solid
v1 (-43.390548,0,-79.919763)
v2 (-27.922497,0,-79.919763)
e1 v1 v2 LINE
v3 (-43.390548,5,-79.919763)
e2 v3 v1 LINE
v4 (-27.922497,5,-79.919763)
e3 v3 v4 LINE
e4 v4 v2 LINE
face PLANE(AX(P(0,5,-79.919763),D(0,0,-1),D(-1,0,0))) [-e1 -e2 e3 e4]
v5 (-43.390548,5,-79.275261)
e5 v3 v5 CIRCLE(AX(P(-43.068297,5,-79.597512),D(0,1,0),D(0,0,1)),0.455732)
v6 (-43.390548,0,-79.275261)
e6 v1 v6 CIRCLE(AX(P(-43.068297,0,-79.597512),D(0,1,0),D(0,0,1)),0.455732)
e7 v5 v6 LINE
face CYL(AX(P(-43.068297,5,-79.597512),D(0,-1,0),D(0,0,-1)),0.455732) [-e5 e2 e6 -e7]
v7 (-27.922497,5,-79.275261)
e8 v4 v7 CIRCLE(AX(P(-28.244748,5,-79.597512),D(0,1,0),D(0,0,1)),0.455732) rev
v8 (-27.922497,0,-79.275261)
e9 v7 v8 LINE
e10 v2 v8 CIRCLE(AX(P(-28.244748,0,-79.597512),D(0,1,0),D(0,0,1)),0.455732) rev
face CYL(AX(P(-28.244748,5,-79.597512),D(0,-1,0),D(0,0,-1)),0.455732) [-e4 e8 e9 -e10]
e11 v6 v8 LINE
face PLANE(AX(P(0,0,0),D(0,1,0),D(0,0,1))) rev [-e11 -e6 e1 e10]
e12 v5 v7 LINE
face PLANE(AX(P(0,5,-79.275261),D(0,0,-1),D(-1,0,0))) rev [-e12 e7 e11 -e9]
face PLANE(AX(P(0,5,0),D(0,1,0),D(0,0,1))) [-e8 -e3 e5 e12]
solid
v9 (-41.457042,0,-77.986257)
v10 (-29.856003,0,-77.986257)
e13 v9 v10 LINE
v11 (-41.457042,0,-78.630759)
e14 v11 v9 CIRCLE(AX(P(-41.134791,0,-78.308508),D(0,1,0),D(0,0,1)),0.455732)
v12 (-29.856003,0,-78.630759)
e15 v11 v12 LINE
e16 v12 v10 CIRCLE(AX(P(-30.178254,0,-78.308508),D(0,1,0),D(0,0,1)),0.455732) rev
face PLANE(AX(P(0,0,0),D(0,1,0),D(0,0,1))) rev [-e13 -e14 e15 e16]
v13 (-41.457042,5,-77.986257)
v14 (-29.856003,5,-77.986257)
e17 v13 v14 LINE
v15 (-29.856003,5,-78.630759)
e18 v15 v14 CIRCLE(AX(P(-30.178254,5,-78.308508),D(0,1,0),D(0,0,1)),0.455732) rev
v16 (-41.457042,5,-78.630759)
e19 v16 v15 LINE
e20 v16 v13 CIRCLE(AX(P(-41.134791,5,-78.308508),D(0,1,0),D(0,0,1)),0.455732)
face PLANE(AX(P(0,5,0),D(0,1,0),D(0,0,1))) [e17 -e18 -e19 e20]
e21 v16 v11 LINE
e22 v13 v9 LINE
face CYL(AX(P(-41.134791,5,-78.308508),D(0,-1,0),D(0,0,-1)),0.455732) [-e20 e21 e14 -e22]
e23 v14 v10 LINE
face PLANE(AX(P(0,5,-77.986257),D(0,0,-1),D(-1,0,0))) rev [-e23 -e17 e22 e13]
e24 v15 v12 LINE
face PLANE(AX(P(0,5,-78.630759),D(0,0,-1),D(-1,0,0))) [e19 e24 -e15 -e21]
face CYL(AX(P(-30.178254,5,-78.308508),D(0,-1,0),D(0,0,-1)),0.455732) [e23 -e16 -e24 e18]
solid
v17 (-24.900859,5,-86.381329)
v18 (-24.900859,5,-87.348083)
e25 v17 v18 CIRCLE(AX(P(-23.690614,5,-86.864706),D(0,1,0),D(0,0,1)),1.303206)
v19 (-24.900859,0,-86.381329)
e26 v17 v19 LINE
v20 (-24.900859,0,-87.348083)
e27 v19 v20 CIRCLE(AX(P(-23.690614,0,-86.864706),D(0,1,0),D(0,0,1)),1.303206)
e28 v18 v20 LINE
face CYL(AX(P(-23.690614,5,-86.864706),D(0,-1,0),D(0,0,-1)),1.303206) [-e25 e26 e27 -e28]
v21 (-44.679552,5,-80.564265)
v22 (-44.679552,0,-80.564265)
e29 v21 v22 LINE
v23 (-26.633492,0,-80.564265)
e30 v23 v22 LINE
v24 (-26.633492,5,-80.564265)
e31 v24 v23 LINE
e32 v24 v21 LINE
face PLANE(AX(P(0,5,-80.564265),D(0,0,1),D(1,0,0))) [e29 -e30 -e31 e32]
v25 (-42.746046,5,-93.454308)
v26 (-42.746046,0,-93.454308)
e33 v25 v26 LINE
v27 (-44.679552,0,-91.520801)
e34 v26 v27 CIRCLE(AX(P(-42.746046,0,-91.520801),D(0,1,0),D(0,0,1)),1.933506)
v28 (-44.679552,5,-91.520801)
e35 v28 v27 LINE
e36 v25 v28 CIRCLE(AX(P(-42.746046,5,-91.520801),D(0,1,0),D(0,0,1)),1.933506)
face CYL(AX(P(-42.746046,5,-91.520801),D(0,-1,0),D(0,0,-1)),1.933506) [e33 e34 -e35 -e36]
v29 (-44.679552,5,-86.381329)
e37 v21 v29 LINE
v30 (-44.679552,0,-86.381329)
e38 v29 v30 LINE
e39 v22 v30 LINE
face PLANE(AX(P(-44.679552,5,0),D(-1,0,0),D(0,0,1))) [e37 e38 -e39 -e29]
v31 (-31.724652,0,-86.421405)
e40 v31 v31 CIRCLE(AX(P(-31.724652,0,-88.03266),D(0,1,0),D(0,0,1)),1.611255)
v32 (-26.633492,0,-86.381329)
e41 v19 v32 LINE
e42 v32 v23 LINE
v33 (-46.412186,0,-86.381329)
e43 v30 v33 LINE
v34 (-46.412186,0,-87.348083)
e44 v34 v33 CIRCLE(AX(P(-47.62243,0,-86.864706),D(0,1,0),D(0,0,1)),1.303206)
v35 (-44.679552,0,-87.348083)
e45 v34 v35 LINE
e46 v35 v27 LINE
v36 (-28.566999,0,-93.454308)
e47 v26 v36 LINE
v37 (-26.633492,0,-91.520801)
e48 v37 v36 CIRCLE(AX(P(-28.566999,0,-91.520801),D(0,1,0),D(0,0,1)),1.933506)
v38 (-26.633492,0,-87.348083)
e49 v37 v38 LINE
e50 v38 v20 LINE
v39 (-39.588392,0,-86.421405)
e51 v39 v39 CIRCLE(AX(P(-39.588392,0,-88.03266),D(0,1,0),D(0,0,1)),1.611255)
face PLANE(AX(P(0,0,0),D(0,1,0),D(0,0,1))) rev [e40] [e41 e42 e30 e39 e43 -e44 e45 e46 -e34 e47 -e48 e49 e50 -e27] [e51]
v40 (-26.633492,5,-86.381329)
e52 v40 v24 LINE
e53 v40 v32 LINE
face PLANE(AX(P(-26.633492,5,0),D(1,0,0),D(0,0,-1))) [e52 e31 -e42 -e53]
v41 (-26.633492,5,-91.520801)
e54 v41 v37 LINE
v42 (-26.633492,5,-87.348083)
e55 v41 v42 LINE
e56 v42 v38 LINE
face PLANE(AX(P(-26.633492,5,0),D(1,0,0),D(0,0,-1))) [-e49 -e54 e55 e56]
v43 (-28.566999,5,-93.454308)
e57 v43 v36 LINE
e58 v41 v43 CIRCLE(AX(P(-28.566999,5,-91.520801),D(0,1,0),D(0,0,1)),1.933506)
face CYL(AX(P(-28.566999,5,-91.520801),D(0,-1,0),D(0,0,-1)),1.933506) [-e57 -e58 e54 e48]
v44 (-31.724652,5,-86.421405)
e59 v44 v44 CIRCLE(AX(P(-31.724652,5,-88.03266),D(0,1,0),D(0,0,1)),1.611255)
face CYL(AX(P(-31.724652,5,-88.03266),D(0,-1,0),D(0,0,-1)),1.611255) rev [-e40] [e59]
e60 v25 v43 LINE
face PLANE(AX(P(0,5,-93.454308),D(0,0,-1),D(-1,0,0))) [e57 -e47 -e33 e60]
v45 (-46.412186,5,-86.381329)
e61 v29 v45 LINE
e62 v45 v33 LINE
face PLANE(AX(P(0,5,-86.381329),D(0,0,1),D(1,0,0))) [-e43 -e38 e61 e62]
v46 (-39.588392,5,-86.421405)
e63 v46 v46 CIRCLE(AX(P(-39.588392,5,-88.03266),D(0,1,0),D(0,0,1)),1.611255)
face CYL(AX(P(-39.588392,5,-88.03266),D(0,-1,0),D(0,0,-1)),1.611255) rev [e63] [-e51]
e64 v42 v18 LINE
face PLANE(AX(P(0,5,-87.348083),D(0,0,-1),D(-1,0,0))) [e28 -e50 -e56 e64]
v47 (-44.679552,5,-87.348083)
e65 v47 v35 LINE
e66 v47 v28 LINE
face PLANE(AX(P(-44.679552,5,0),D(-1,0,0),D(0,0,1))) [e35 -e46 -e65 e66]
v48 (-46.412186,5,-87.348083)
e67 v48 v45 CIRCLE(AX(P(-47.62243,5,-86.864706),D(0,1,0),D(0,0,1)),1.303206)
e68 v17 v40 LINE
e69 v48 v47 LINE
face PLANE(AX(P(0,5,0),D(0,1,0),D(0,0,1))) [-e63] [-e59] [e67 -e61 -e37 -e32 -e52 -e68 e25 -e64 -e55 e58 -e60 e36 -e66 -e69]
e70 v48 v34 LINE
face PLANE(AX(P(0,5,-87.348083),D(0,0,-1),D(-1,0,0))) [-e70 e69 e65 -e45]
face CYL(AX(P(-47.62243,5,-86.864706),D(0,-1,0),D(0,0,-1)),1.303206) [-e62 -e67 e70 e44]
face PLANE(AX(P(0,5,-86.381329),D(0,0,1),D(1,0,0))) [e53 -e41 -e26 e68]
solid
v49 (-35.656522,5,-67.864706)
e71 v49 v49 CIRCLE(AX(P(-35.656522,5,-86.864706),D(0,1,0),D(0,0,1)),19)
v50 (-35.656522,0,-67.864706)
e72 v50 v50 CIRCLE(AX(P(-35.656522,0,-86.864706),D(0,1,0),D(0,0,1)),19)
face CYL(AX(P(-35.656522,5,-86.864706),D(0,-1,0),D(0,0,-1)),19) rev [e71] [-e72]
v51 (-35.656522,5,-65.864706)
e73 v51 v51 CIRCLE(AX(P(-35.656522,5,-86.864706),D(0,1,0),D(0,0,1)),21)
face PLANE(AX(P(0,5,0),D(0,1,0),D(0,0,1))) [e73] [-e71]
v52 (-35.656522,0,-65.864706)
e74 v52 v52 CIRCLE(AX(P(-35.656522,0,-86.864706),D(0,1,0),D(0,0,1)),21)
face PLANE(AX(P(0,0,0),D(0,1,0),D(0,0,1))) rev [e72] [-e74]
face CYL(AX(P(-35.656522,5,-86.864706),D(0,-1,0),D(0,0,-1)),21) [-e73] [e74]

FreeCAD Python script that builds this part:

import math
import FreeCAD as App
import Part
import Sketcher

doc = App.newDocument("Part")
body = doc.addObject("PartDesign::Body", "Body")

# Sketch on XZ plane
sketch1 = body.newObject("Sketcher::SketchObject", "Sketch")
sketch1.AttachmentSupport = (doc.getObject("XZ_Plane"), [""])
sketch1.MapMode = "FlatFace"
sketch1.addGeometry(Part.Circle(App.Vector(-35.656522, -86.864706, 0), App.Vector(0, 0, 1), 21), False)
sketch1.addGeometry(Part.Circle(App.Vector(-35.656522, -86.864706, 0), App.Vector(0, 0, 1), 19), False)
sketch1.addConstraint(Sketcher.Constraint("Coincident", 1, 3, 0, 3))
sketch1.addConstraint(Sketcher.Constraint("Diameter", 0, 42.0))
sketch1.addConstraint(Sketcher.Constraint("Diameter", 1, 38.0))
sketch1.addConstraint(Sketcher.Constraint("DistanceX", 0, 3, -1, 1, 35.656522))
sketch1.addConstraint(Sketcher.Constraint("DistanceY", 0, 3, -1, 1, 86.864706))
pad1 = body.newObject("PartDesign::Pad", "Pad")
pad1.Profile = sketch1
pad1.Length = 5
pad1.Reversed = True
body2 = doc.addObject("PartDesign::Body", "Body001")

# Sketch on XZ plane
sketch2 = body2.newObject("Sketcher::SketchObject", "Sketch001")
sketch2.AttachmentSupport = (doc.getObject("XZ_Plane001"), [""])
sketch2.MapMode = "FlatFace"
sketch2.addGeometry(Part.LineSegment(App.Vector(-26.633492, -87.348083, 0), App.Vector(-26.633492, -91.520801, 0)), False)
sketch2.addGeometry(Part.ArcOfCircle(Part.Circle(App.Vector(-28.566999, -91.520801, 0), App.Vector(0, 0, 1), 1.933506), math.radians(-90), math.radians(0)), False)
sketch2.addGeometry(Part.LineSegment(App.Vector(-28.566999, -93.454308, 0), App.Vector(-42.746046, -93.454308, 0)), False)
sketch2.addGeometry(Part.ArcOfCircle(Part.Circle(App.Vector(-42.746046, -91.520801, 0), App.Vector(0, 0, 1), 1.933506), math.radians(180), math.radians(270)), False)
sketch2.addGeometry(Part.LineSegment(App.Vector(-44.679552, -91.520801, 0), App.Vector(-44.679552, -87.348083, 0)), False)
sketch2.addGeometry(Part.LineSegment(App.Vector(-44.679552, -87.348083, 0), App.Vector(-46.412186, -87.348083, 0)), False)
sketch2.addGeometry(Part.ArcOfCircle(Part.Circle(App.Vector(-47.62243, -86.864706, 0), App.Vector(0, 0, 1), 1.303206), math.radians(21.771967), math.radians(338.228033)), False)
sketch2.addGeometry(Part.LineSegment(App.Vector(-46.412186, -86.381329, 0), App.Vector(-44.679552, -86.381329, 0)), False)
sketch2.addGeometry(Part.LineSegment(App.Vector(-44.679552, -86.381329, 0), App.Vector(-44.679552, -80.564265, 0)), False)
sketch2.addGeometry(Part.LineSegment(App.Vector(-44.679552, -80.564265, 0), App.Vector(-26.633492, -80.564265, 0)), False)
sketch2.addGeometry(Part.LineSegment(App.Vector(-26.633492, -80.564265, 0), App.Vector(-26.633492, -86.381329, 0)), False)
sketch2.addGeometry(Part.LineSegment(App.Vector(-26.633492, -86.381329, 0), App.Vector(-24.900859, -86.381329, 0)), False)
sketch2.addGeometry(Part.ArcOfCircle(Part.Circle(App.Vector(-23.690614, -86.864706, 0), App.Vector(0, 0, 1), 1.303206), math.radians(-158.228033), math.radians(158.228033)), False)
sketch2.addGeometry(Part.LineSegment(App.Vector(-24.900859, -87.348083, 0), App.Vector(-26.633492, -87.348083, 0)), False)
sketch2.addGeometry(Part.Circle(App.Vector(-31.724652, -88.03266, 0), App.Vector(0, 0, 1), 1.611255), False)
sketch2.addGeometry(Part.Circle(App.Vector(-39.588392, -88.03266, 0), App.Vector(0, 0, 1), 1.611255), False)
sketch2.addConstraint(Sketcher.Constraint("Tangent", 0, 2, 1, 2))
sketch2.addConstraint(Sketcher.Constraint("Tangent", 1, 1, 2, 1))
sketch2.addConstraint(Sketcher.Constraint("Tangent", 2, 2, 3, 2))
sketch2.addConstraint(Sketcher.Constraint("Tangent", 3, 1, 4, 1))
sketch2.addConstraint(Sketcher.Constraint("Coincident", 4, 2, 5, 1))
sketch2.addConstraint(Sketcher.Constraint("Coincident", 5, 2, 6, 2))
sketch2.addConstraint(Sketcher.Constraint("Coincident", 6, 1, 7, 1))
sketch2.addConstraint(Sketcher.Constraint("Coincident", 7, 2, 8, 1))
sketch2.addConstraint(Sketcher.Constraint("Coincident", 8, 2, 9, 1))
sketch2.addConstraint(Sketcher.Constraint("Coincident", 9, 2, 10, 1))
sketch2.addConstraint(Sketcher.Constraint("Coincident", 10, 2, 11, 1))
sketch2.addConstraint(Sketcher.Constraint("Coincident", 11, 2, 12, 2))
sketch2.addConstraint(Sketcher.Constraint("Coincident", 12, 1, 13, 1))
sketch2.addConstraint(Sketcher.Constraint("Coincident", 13, 2, 0, 1))
sketch2.addConstraint(Sketcher.Constraint("Vertical", 0))
sketch2.addConstraint(Sketcher.Constraint("Horizontal", 2))
sketch2.addConstraint(Sketcher.Constraint("Vertical", 4))
sketch2.addConstraint(Sketcher.Constraint("Horizontal", 5))
sketch2.addConstraint(Sketcher.Constraint("Horizontal", 7))
sketch2.addConstraint(Sketcher.Constraint("Vertical", 8))
sketch2.addConstraint(Sketcher.Constraint("Horizontal", 9))
sketch2.addConstraint(Sketcher.Constraint("Vertical", 10))
sketch2.addConstraint(Sketcher.Constraint("Horizontal", 11))
sketch2.addConstraint(Sketcher.Constraint("Horizontal", 13))
sketch2.addConstraint(Sketcher.Constraint("Equal", 1, 3))
sketch2.addConstraint(Sketcher.Constraint("Equal", 6, 12))
sketch2.addConstraint(Sketcher.Constraint("Equal", 14, 15))
sketch2.addConstraint(Sketcher.Constraint("Horizontal", 6, 3, 12, 3))
sketch2.addConstraint(Sketcher.Constraint("Horizontal", 14, 3, 15, 3))
sketch2.addConstraint(Sketcher.Constraint("Horizontal", 7, 2, 10, 2))
sketch2.addConstraint(Sketcher.Constraint("Horizontal", 5, 2, 12, 1))
sketch2.addConstraint(Sketcher.Constraint("Vertical", 5, 2, 6, 1))
sketch2.addConstraint(Sketcher.Constraint("Vertical", 4, 2, 7, 2))
sketch2.addConstraint(Sketcher.Constraint("Vertical", 0, 2, 9, 2))
sketch2.addConstraint(Sketcher.Constraint("Equal", 7, 11))
sketch2.addConstraint(Sketcher.Constraint("Diameter", 14, 3.222511))
sketch2.addConstraint(Sketcher.Constraint("DistanceX", 1, 3, -1, 1, 28.566999))
sketch2.addConstraint(Sketcher.Constraint("Radius", 1, 1.933506))
sketch2.addConstraint(Sketcher.Constraint("Radius", 6, 1.303206))
sketch2.addConstraint(Sketcher.Constraint("DistanceX", 9, 1, 9, 2, 18.04606))
sketch2.addConstraint(Sketcher.Constraint("DistanceY", 0, 2, 0, 1, 4.172719))
sketch2.addConstraint(Sketcher.Constraint("DistanceY", 1, 3, -1, 1, 91.520801))
sketch2.addConstraint(Sketcher.Constraint("DistanceX", 15, 3, 0, 2, 12.9549))
sketch2.addConstraint(Sketcher.Constraint("DistanceY", 1, 1, 12, 3, 6.589602))
sketch2.addConstraint(Sketcher.Constraint("DistanceX", 3, 1, 14, 3, 12.9549))
sketch2.addConstraint(Sketcher.Constraint("DistanceX", 5, 2, 5, 1, 1.732633))
sketch2.addConstraint(Sketcher.Constraint("DistanceY", 8, 1, 8, 2, 5.817064))
sketch2.addConstraint(Sketcher.Constraint("DistanceY", 14, 3, -1, 1, 88.03266))
pad2 = body2.newObject("PartDesign::Pad", "Pad001")
pad2.Profile = sketch2
pad2.Length = 5
pad2.Reversed = True
body3 = doc.addObject("PartDesign::Body", "Body002")

# Sketch on XZ plane
sketch3 = body3.newObject("Sketcher::SketchObject", "Sketch002")
sketch3.AttachmentSupport = (doc.getObject("XZ_Plane002"), [""])
sketch3.MapMode = "FlatFace"
sketch3.addGeometry(Part.ArcOfCircle(Part.Circle(App.Vector(-30.178254, -78.308508, 0), App.Vector(0, 0, 1), 0.455732), math.radians(-45), math.radians(45)), False)
sketch3.addGeometry(Part.LineSegment(App.Vector(-29.856003, -78.630759, 0), App.Vector(-41.457042, -78.630759, 0)), False)
sketch3.addGeometry(Part.ArcOfCircle(Part.Circle(App.Vector(-41.134791, -78.308508, 0), App.Vector(0, 0, 1), 0.455732), math.radians(135), math.radians(225)), False)
sketch3.addGeometry(Part.LineSegment(App.Vector(-41.457042, -77.986257, 0), App.Vector(-29.856003, -77.986257, 0)), False)
sketch3.addConstraint(Sketcher.Constraint("Coincident", 0, 1, 1, 1))
sketch3.addConstraint(Sketcher.Constraint("Coincident", 1, 2, 2, 2))
sketch3.addConstraint(Sketcher.Constraint("Coincident", 2, 1, 3, 1))
sketch3.addConstraint(Sketcher.Constraint("Coincident", 3, 2, 0, 2))
sketch3.addConstraint(Sketcher.Constraint("Horizontal", 1))
sketch3.addConstraint(Sketcher.Constraint("Horizontal", 3))
sketch3.addConstraint(Sketcher.Constraint("Equal", 0, 2))
sketch3.addConstraint(Sketcher.Constraint("Horizontal", 0, 3, 2, 3))
sketch3.addConstraint(Sketcher.Constraint("Vertical", 1, 2, 2, 1))
sketch3.addConstraint(Sketcher.Constraint("Radius", 0, 0.455732))
sketch3.addConstraint(Sketcher.Constraint("DistanceX", 1, 2, 1, 1, 11.601038))
sketch3.addConstraint(Sketcher.Constraint("DistanceX", 2, 3, -1, 1, 41.134791))
sketch3.addConstraint(Sketcher.Constraint("DistanceY", 0, 1, -1, 1, 78.630759))
sketch3.addConstraint(Sketcher.Constraint("DistanceX", 1, 2, -1, 1, 41.457042))
pad3 = body3.newObject("PartDesign::Pad", "Pad002")
pad3.Profile = sketch3
pad3.Length = 5
pad3.Reversed = True
body4 = doc.addObject("PartDesign::Body", "Body003")

# Sketch on XZ plane
sketch4 = body4.newObject("Sketcher::SketchObject", "Sketch003")
sketch4.AttachmentSupport = (doc.getObject("XZ_Plane003"), [""])
sketch4.MapMode = "FlatFace"
sketch4.addGeometry(Part.ArcOfCircle(Part.Circle(App.Vector(-28.244748, -79.597512, 0), App.Vector(0, 0, 1), 0.455732), math.radians(-45), math.radians(45)), False)
sketch4.addGeometry(Part.LineSegment(App.Vector(-27.922497, -79.919763, 0), App.Vector(-43.390548, -79.919763, 0)), False)
sketch4.addGeometry(Part.ArcOfCircle(Part.Circle(App.Vector(-43.068297, -79.597512, 0), App.Vector(0, 0, 1), 0.455732), math.radians(135), math.radians(225)), False)
sketch4.addGeometry(Part.LineSegment(App.Vector(-43.390548, -79.275261, 0), App.Vector(-27.922497, -79.275261, 0)), False)
sketch4.addConstraint(Sketcher.Constraint("Coincident", 0, 1, 1, 1))
sketch4.addConstraint(Sketcher.Constraint("Coincident", 1, 2, 2, 2))
sketch4.addConstraint(Sketcher.Constraint("Coincident", 2, 1, 3, 1))
sketch4.addConstraint(Sketcher.Constraint("Coincident", 3, 2, 0, 2))
sketch4.addConstraint(Sketcher.Constraint("Horizontal", 1))
sketch4.addConstraint(Sketcher.Constraint("Horizontal", 3))
sketch4.addConstraint(Sketcher.Constraint("Equal", 0, 2))
sketch4.addConstraint(Sketcher.Constraint("Horizontal", 0, 3, 2, 3))
sketch4.addConstraint(Sketcher.Constraint("Vertical", 1, 2, 2, 1))
sketch4.addConstraint(Sketcher.Constraint("Radius", 0, 0.455732))
sketch4.addConstraint(Sketcher.Constraint("DistanceX", 1, 2, 1, 1, 15.468051))
sketch4.addConstraint(Sketcher.Constraint("DistanceX", 2, 3, 0, 1, 15.1458))
sketch4.addConstraint(Sketcher.Constraint("DistanceY", 0, 3, -1, 1, 79.597512))
sketch4.addConstraint(Sketcher.Constraint("DistanceX", 1, 2, -1, 1, 43.390548))
pad4 = body4.newObject("PartDesign::Pad", "Pad003")
pad4.Profile = sketch4
pad4.Length = 5
pad4.Reversed = True

doc.recompute()
